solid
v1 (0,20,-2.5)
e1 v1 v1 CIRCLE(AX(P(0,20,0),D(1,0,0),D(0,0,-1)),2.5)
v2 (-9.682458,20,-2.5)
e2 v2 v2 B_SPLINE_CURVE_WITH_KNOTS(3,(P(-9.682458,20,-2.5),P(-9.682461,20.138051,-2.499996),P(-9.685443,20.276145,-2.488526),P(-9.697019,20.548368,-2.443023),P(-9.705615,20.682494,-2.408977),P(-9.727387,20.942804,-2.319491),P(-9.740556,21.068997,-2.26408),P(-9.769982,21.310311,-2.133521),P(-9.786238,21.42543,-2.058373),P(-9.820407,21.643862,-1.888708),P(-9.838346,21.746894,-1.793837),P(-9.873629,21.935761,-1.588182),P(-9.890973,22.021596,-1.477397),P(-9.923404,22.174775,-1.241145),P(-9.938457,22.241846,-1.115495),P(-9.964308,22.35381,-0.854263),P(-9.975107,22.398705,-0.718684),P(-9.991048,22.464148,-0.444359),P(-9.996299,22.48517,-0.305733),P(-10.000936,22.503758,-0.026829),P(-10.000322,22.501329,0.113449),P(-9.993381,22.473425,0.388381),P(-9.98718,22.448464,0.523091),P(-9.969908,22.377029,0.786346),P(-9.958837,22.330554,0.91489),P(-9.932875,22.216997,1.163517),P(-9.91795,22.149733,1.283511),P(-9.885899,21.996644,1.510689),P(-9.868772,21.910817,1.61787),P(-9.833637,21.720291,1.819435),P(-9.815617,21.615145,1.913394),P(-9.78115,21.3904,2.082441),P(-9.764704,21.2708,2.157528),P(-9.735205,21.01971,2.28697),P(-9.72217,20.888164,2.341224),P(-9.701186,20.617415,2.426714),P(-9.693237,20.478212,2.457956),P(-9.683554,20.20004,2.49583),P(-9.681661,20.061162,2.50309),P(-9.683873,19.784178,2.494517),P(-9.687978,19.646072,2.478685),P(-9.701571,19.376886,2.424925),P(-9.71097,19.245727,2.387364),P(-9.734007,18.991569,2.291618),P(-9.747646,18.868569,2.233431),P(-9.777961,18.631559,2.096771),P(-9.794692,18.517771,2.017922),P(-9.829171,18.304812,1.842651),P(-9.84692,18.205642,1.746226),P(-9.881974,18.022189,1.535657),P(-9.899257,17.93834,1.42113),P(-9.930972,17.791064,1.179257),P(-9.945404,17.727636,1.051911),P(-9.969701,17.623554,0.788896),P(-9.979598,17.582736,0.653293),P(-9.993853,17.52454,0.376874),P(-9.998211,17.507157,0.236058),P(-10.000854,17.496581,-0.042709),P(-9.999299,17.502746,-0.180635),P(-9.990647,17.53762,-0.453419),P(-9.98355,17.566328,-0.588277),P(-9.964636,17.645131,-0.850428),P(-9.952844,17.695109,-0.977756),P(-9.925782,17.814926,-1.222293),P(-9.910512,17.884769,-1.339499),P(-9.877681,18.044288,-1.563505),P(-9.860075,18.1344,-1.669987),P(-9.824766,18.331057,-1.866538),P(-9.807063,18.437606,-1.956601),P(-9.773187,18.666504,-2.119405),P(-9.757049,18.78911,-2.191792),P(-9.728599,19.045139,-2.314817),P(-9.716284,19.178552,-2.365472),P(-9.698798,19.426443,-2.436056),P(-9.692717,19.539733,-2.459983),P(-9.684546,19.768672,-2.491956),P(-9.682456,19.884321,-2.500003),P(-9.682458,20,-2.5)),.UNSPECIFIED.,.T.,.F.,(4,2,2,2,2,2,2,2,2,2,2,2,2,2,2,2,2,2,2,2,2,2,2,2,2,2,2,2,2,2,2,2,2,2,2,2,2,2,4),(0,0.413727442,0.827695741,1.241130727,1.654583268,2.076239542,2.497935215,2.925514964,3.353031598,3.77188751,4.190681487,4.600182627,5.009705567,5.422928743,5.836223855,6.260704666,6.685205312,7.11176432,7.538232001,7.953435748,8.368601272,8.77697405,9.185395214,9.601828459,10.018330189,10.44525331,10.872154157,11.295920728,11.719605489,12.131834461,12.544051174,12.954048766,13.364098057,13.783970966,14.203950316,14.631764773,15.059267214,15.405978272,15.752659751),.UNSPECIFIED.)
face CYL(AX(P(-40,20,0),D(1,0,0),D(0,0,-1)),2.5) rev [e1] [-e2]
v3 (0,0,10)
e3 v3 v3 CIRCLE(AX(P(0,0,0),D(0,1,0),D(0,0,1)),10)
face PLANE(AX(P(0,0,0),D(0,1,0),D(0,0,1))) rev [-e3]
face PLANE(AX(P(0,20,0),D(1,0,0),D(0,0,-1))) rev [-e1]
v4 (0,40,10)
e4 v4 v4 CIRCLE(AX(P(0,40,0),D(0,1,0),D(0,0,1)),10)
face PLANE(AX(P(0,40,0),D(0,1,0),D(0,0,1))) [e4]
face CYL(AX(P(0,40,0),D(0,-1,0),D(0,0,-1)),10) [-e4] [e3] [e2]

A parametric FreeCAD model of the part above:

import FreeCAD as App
import Part
import Sketcher
from FreeCAD import Vector

doc = App.newDocument("Part")
body = doc.addObject("PartDesign::Body", "Body")

# Sketch on XZ plane
sketch1 = body.newObject("Sketcher::SketchObject", "Sketch")
sketch1.AttachmentSupport = (doc.getObject("XZ_Plane"), [""])
sketch1.MapMode = "FlatFace"
sketch1.addGeometry(Part.Circle(Vector(0, 0, 0), Vector(0, 0, 1), 10), False)
sketch1.addConstraint([
    Sketcher.Constraint("Coincident", 0, 3, -1, 1),
    Sketcher.Constraint("Diameter", 0, 20.0),
])
pad1 = body.newObject("PartDesign::Pad", "Pad")
pad1.Profile = sketch1
pad1.Length = 40
pad1.Reversed = True

# Sketch on YZ plane
sketch2 = body.newObject("Sketcher::SketchObject", "Sketch001")
sketch2.AttachmentSupport = (doc.getObject("YZ_Plane"), [""])
sketch2.MapMode = "FlatFace"
sketch2.addGeometry(Part.Circle(Vector(20, 0, 0), Vector(0, 0, 1), 2.5), False)
sketch2.addConstraint([
    Sketcher.Constraint("PointOnObject", 0, 3, -1),
    Sketcher.Constraint("Diameter", 0, 5.0),
    Sketcher.Constraint("DistanceX", -1, 1, 0, 3, 20.0),
])
pocket1 = body.newObject("PartDesign::Pocket", "Pocket")
pocket1.Profile = sketch2
pocket1.Length = 40

doc.recompute()
